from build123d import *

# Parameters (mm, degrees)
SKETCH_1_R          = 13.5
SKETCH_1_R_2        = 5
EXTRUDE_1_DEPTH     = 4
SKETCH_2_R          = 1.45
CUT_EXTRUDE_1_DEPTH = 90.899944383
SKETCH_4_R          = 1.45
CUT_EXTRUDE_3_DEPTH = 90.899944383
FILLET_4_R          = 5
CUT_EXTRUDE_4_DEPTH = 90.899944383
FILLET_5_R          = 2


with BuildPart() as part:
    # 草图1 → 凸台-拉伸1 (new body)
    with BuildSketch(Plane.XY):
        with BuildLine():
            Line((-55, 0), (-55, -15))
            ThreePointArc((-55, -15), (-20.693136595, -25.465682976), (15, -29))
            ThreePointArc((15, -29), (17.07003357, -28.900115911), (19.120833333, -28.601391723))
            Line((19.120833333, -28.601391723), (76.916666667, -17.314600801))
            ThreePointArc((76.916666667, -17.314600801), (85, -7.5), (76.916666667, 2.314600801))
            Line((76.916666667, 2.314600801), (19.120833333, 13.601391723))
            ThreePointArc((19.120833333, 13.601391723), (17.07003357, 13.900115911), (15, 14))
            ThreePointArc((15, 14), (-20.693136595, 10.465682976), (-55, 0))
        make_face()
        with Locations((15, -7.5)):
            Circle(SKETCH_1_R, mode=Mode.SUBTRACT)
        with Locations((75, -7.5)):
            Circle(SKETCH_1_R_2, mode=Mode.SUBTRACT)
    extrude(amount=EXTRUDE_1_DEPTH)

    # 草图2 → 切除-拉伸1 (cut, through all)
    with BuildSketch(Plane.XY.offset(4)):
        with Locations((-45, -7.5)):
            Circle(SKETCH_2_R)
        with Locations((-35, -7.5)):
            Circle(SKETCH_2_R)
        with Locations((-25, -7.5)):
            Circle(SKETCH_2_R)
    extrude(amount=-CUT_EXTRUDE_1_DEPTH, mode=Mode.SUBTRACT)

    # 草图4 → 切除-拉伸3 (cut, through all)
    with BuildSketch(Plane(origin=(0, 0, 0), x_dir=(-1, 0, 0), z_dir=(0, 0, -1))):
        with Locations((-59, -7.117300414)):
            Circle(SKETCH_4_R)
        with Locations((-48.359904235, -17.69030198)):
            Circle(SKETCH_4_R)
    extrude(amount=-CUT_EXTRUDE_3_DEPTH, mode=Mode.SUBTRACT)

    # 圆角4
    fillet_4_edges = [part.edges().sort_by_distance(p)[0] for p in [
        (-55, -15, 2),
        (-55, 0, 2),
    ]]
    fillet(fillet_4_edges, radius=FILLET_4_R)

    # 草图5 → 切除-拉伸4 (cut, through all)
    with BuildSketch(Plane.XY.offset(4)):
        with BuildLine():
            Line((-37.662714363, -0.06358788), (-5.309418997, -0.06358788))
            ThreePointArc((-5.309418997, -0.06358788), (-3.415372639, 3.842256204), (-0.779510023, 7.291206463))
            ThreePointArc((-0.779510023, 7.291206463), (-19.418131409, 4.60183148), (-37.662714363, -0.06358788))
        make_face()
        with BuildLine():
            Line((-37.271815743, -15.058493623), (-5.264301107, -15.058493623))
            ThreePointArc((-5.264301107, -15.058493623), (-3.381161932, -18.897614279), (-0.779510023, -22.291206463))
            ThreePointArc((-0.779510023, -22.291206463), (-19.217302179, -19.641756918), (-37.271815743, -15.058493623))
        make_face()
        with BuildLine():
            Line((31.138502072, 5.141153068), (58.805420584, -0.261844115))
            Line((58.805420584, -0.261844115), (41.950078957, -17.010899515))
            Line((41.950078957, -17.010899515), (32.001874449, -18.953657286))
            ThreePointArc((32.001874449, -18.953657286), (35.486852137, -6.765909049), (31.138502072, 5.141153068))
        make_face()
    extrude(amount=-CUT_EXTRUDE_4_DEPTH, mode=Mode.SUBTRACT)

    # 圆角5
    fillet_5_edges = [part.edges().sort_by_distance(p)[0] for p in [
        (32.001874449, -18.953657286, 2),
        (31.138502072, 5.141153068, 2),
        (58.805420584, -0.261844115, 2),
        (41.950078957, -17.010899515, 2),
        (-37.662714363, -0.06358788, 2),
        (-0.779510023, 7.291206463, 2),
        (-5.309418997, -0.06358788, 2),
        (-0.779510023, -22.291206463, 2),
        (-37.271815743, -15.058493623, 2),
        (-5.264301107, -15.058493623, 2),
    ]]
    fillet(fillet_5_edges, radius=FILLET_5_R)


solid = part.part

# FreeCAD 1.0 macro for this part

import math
import FreeCAD as App
import Part
import Sketcher
Q = App.Units.Quantity


def edges_at(feature, points):
    """Names of the edges that pass closest to the given points."""
    edges = feature.Shape.Edges
    near = lambda p: min(range(len(edges)), key=lambda i: edges[i].distToShape(Part.Vertex(*p))[0])
    return sorted({f"Edge{near(p) + 1}" for p in points})

doc = App.newDocument("Part")
body = doc.addObject("PartDesign::Body", "Body")

sketch1 = body.newObject("Sketcher::SketchObject", "Sketch")
sketch1.AttachmentSupport = (doc.getObject("XY_Plane"), [""])
sketch1.MapMode = "FlatFace"
sketch1.addGeometry([
    Part.LineSegment(App.Vector(-55, 0, 0), App.Vector(-55, -15, 0)),
    Part.ArcOfCircle(Part.Circle(App.Vector(15, 153, 0), App.Vector(0, 0, 1), 182), math.radians(-112.619865), math.radians(-90)),
    Part.ArcOfCircle(Part.Circle(App.Vector(15, -7.5, 0), App.Vector(0, 0, 1), 21.5), math.radians(-90), math.radians(-78.949935)),
    Part.LineSegment(App.Vector(19.120833, -28.601392, 0), App.Vector(76.916667, -17.314601, 0)),
    Part.ArcOfCircle(Part.Circle(App.Vector(75, -7.5, 0), App.Vector(0, 0, 1), 10), math.radians(-78.949935), math.radians(78.949935)),
    Part.LineSegment(App.Vector(76.916667, 2.314601, 0), App.Vector(19.120833, 13.601392, 0)),
    Part.ArcOfCircle(Part.Circle(App.Vector(15, -7.5, 0), App.Vector(0, 0, 1), 21.5), math.radians(78.949935), math.radians(90)),
    Part.ArcOfCircle(Part.Circle(App.Vector(15, -168, 0), App.Vector(0, 0, 1), 182), math.radians(90), math.radians(112.619865)),
    Part.Circle(App.Vector(15, -7.5, 0), App.Vector(0, 0, 1), 13.5),
    Part.Circle(App.Vector(75, -7.5, 0), App.Vector(0, 0, 1), 5),
], False)
sketch1.addConstraint([
    Sketcher.Constraint("Coincident", 0, 2, 1, 1),
    Sketcher.Constraint("Tangent", 1, 2, 2, 1),
    Sketcher.Constraint("Tangent", 2, 2, 3, 1),
    Sketcher.Constraint("Tangent", 3, 2, 4, 1),
    Sketcher.Constraint("Tangent", 4, 2, 5, 1),
    Sketcher.Constraint("Tangent", 5, 2, 6, 1),
    Sketcher.Constraint("Tangent", 6, 2, 7, 1),
    Sketcher.Constraint("Coincident", 7, 2, 0, 1),
    Sketcher.Constraint("Vertical", 0),
    Sketcher.Constraint("Coincident", 6, 3, 2, 3),
    Sketcher.Constraint("Coincident", 8, 3, 2, 3),
    Sketcher.Constraint("Coincident", 9, 3, 4, 3),
    Sketcher.Constraint("Equal", 2, 6),
    Sketcher.Constraint("Equal", 1, 7),
    Sketcher.Constraint("PointOnObject", 7, 2, -1),
    Sketcher.Constraint("Horizontal", 2, 3, 4, 3),
    Sketcher.Constraint("Vertical", 1, 3, 2, 3),
    Sketcher.Constraint("Vertical", 6, 3, 7, 3),
    Sketcher.Constraint("Diameter", 8, Q("27 mm")),
    Sketcher.Constraint("Diameter", 9, Q("10 mm")),
    Sketcher.Constraint("Radius", 1, Q("182 mm")),
    Sketcher.Constraint("Radius", 4, Q("10 mm")),
    Sketcher.Constraint("Radius", 2, Q("21.5 mm")),
    Sketcher.Constraint("DistanceY", 0, 2, 0, 1, Q("15 mm")),
    Sketcher.Constraint("DistanceX", -1, 1, 1, 3, Q("15 mm")),
    Sketcher.Constraint("DistanceX", -1, 1, 4, 3, Q("75 mm")),
])
pad1 = body.newObject("PartDesign::Pad", "Pad")
pad1.Profile = sketch1
pad1.Length = 4

sketch2 = body.newObject("Sketcher::SketchObject", "Sketch001")
sketch2.AttachmentSupport = (doc.getObject("XY_Plane"), [""])
sketch2.MapMode = "FlatFace"
sketch2.AttachmentOffset = App.Placement(App.Vector(0, 0, 4), App.Rotation())
sketch2.addGeometry([
    Part.Circle(App.Vector(-45, -7.5, 0), App.Vector(0, 0, 1), 1.45),
    Part.Circle(App.Vector(-35, -7.5, 0), App.Vector(0, 0, 1), 1.45),
    Part.Circle(App.Vector(-25, -7.5, 0), App.Vector(0, 0, 1), 1.45),
], False)
sketch2.addConstraint([
    Sketcher.Constraint("Equal", 0, 1),
    Sketcher.Constraint("Equal", 1, 2),
    Sketcher.Constraint("Horizontal", 0, 3, 1, 3),
    Sketcher.Constraint("Horizontal", 1, 3, 2, 3),
    Sketcher.Constraint("Diameter", 0, Q("2.9 mm")),
    Sketcher.Constraint("DistanceX", 0, 3, -1, 1, Q("45 mm")),
    Sketcher.Constraint("DistanceX", 1, 3, -1, 1, Q("35 mm")),
    Sketcher.Constraint("DistanceX", 2, 3, -1, 1, Q("25 mm")),
    Sketcher.Constraint("DistanceY", 0, 3, -1, 1, Q("7.5 mm")),
])
pocket1 = body.newObject("PartDesign::Pocket", "Pocket")
pocket1.Profile = sketch2
pocket1.Type = "ThroughAll"

sketch3 = body.newObject("Sketcher::SketchObject", "Sketch002")
sketch3.AttachmentSupport = (doc.getObject("XY_Plane"), [""])
sketch3.MapMode = "FlatFace"
sketch3.addGeometry([
    Part.Circle(App.Vector(59, -7.1173, 0), App.Vector(0, 0, 1), 1.45),
    Part.Circle(App.Vector(48.359904, -17.690302, 0), App.Vector(0, 0, 1), 1.45),
], False)
sketch3.addConstraint([
    Sketcher.Constraint("Equal", 0, 1),
    Sketcher.Constraint("Diameter", 0, Q("2.9 mm")),
    Sketcher.Constraint("DistanceX", -1, 1, 0, 3, Q("59 mm")),
    Sketcher.Constraint("DistanceY", 1, 3, 0, 3, Q("10.573002 mm")),
    Sketcher.Constraint("DistanceY", 0, 3, -1, 1, Q("7.1173 mm")),
    Sketcher.Constraint("DistanceX", -1, 1, 1, 3, Q("48.359904 mm")),
])
pocket2 = body.newObject("PartDesign::Pocket", "Pocket001")
pocket2.Profile = sketch3
pocket2.Type = "ThroughAll"
pocket2.Reversed = True
doc.recompute()

fillet = body.newObject("PartDesign::Fillet", "Fillet")
fillet.Base = (pocket2, edges_at(pocket2, [(-55, -15, 2), (-55, 0, 2)]))
fillet.Radius = 5

sketch4 = body.newObject("Sketcher::SketchObject", "Sketch003")
sketch4.AttachmentSupport = (doc.getObject("XY_Plane"), [""])
sketch4.MapMode = "FlatFace"
sketch4.AttachmentOffset = App.Placement(App.Vector(0, 0, 4), App.Rotation())
sketch4.addGeometry([
    Part.LineSegment(App.Vector(-37.662714, -0.063588, 0), App.Vector(-5.309419, -0.063588, 0)),
    Part.ArcOfCircle(Part.Circle(App.Vector(15, -7.5, 0), App.Vector(0, 0, 1), 21.628054), math.radians(136.851638), math.radians(159.889501)),
    Part.ArcOfCircle(Part.Circle(App.Vector(15, -168, 0), App.Vector(0, 0, 1), 176), math.radians(95.143835), math.radians(107.410759)),
    Part.LineSegment(App.Vector(-5.264301, -15.058494, 0), App.Vector(-37.271816, -15.058494, 0)),
    Part.ArcOfCircle(Part.Circle(App.Vector(15, 153, 0), App.Vector(0, 0, 1), 176), math.radians(-107.277442), math.radians(-95.143835)),
    Part.ArcOfCircle(Part.Circle(App.Vector(15, -7.5, 0), App.Vector(0, 0, 1), 21.628054), math.radians(-159.54471), math.radians(-136.851638)),
    Part.LineSegment(App.Vector(58.805421, -0.261844, 0), App.Vector(31.138502, 5.141153, 0)),
    Part.ArcOfCircle(Part.Circle(App.Vector(15, -7.5, 0), App.Vector(0, 0, 1), 20.5), math.radians(-33.966977), math.radians(38.0713)),
    Part.LineSegment(App.Vector(32.001874, -18.953657, 0), App.Vector(41.950079, -17.0109, 0)),
    Part.LineSegment(App.Vector(41.950079, -17.0109, 0), App.Vector(58.805421, -0.261844, 0)),
], False)
sketch4.addConstraint([
    Sketcher.Constraint("Coincident", 0, 2, 1, 2),
    Sketcher.Constraint("Coincident", 1, 1, 2, 1),
    Sketcher.Constraint("Coincident", 2, 2, 0, 1),
    Sketcher.Constraint("Coincident", 3, 2, 4, 1),
    Sketcher.Constraint("Coincident", 4, 2, 5, 2),
    Sketcher.Constraint("Coincident", 5, 1, 3, 1),
    Sketcher.Constraint("Coincident", 6, 2, 7, 2),
    Sketcher.Constraint("Coincident", 7, 1, 8, 1),
    Sketcher.Constraint("Coincident", 8, 2, 9, 1),
    Sketcher.Constraint("Coincident", 9, 2, 6, 1),
    Sketcher.Constraint("Horizontal", 0),
    Sketcher.Constraint("Horizontal", 3),
    Sketcher.Constraint("Coincident", 5, 3, 1, 3),
    Sketcher.Constraint("Coincident", 7, 3, 1, 3),
    Sketcher.Constraint("Equal", 2, 4),
    Sketcher.Constraint("Equal", 1, 5),
    Sketcher.Constraint("Vertical", 1, 3, 2, 3),
    Sketcher.Constraint("Vertical", 2, 3, 4, 3),
    Sketcher.Constraint("Vertical", 1, 1, 4, 2),
    Sketcher.Constraint("Radius", 2, Q("176 mm")),
    Sketcher.Constraint("Radius", 7, Q("20.5 mm")),
    Sketcher.Constraint("DistanceX", -1, 1, 1, 3, Q("15 mm")),
    Sketcher.Constraint("DistanceY", 2, 3, -1, 1, Q("168 mm")),
    Sketcher.Constraint("DistanceY", -1, 1, 4, 3, Q("153 mm")),
    Sketcher.Constraint("Radius", 1, Q("21.628054 mm")),
    Sketcher.Constraint("DistanceX", 5, 1, -1, 1, Q("5.264301 mm")),
    Sketcher.Constraint("DistanceY", 8, 2, -1, 1, Q("17.0109 mm")),
    Sketcher.Constraint("DistanceX", 2, 2, 3, 2, Q("0.390899 mm")),
    Sketcher.Constraint("Distance", 6, Q("28.189551 mm")),
    Sketcher.Constraint("DistanceX", -1, 1, 8, 2, Q("41.950079 mm")),
    Sketcher.Constraint("DistanceX", -1, 1, 9, 2, Q("58.805421 mm")),
    Sketcher.Constraint("DistanceX", 0, 2, 6, 2, Q("36.447921 mm")),
    Sketcher.Constraint("DistanceY", 7, 1, 6, 2, Q("24.09481 mm")),
])
pocket3 = body.newObject("PartDesign::Pocket", "Pocket002")
pocket3.Profile = sketch4
pocket3.Type = "ThroughAll"
doc.recompute()

fillet2 = body.newObject("PartDesign::Fillet", "Fillet001")
fillet2.Base = (pocket3, edges_at(pocket3, [
    (32.002, -18.954, 2),
    (31.139, 5.141, 2),
    (58.805, -0.262, 2),
    (41.95, -17.011, 2),
    (-37.663, -0.064, 2),
    (-0.78, 7.291, 2),
    (-5.309, -0.064, 2),
    (-0.78, -22.291, 2),
    (-37.272, -15.058, 2),
    (-5.264, -15.058, 2),
]))
fillet2.Radius = 2

doc.recompute()
